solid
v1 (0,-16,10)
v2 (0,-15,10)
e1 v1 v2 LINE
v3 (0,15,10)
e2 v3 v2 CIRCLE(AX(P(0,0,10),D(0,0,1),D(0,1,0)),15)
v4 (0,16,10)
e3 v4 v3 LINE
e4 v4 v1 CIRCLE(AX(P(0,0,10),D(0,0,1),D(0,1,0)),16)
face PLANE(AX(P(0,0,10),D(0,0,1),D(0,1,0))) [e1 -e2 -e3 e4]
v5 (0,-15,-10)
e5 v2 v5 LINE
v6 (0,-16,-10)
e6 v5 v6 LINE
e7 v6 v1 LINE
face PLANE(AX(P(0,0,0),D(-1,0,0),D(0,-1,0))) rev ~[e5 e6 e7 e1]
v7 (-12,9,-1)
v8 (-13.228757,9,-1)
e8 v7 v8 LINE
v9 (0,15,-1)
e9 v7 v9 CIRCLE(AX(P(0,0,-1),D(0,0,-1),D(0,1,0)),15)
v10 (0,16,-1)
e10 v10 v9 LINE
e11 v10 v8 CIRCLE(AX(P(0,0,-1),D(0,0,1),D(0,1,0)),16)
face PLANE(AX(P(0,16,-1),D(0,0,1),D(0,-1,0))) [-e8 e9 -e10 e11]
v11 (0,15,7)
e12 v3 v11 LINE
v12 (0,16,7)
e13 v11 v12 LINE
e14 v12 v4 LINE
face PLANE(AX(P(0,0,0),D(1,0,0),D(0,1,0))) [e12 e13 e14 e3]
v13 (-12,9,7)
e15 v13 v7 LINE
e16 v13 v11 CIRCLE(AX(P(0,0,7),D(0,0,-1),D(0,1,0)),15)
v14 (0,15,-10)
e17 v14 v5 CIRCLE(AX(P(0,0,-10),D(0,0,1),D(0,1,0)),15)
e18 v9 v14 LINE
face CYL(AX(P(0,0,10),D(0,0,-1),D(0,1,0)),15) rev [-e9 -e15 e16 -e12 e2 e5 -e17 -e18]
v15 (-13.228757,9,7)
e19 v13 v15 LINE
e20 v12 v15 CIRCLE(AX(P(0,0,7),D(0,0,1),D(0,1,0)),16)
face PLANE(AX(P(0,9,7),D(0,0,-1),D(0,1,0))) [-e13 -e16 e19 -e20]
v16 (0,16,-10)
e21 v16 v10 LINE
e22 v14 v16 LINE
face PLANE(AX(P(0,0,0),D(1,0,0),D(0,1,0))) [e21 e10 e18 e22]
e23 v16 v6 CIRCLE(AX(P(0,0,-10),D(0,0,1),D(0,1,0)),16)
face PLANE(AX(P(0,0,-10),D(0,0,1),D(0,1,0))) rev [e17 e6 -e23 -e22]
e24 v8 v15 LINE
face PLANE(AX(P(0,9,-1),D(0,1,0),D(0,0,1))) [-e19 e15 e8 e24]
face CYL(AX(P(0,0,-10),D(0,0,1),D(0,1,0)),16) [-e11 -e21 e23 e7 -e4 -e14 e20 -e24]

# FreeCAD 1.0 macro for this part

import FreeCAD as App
import Part
import Sketcher

V = App.Vector


def add_polygon(sketch, points):
    """Adds a closed chain of lines whose ends are joined by coincident constraints."""
    first, n = sketch.GeometryCount, len(points)
    for a, b in zip(points, points[1:] + points[:1]):
        sketch.addGeometry(Part.LineSegment(App.Vector(*a, 0), App.Vector(*b, 0)), False)
    for i in range(n):
        sketch.addConstraint(Sketcher.Constraint("Coincident", first + i, 2, first + (i + 1) % n, 1))

doc = App.newDocument("Part")
params = doc.addObject("Spreadsheet::Sheet", "Params")
for row, (alias, value) in enumerate([
    ("sketch1_width", "1 mm"),
    ("sketch1_height", "20 mm"),
    ("revolution_angle", "180 deg"),
    ("sketch2_width", "7 mm"),
    ("sketch2_height", "8 mm"),
], start=1):
    params.set(f"A{row}", alias)
    params.set(f"B{row}", "=" + value)
    params.setAlias(f"B{row}", alias)

body = doc.addObject("PartDesign::Body", "Body")

sketch1 = doc.addObject("Sketcher::SketchObject", "Sketch")
body.addObject(sketch1)
sketch1.AttachmentSupport = (doc.YZ_Plane, [""])
sketch1.MapMode = "FlatFace"
add_polygon(sketch1, [(15, 10), (15, -10), (16, -10), (16, 10)])
sketch1.addConstraint([
    Sketcher.Constraint("Vertical", 0),
    Sketcher.Constraint("Horizontal", 1),
    Sketcher.Constraint("Vertical", 2),
    Sketcher.Constraint("Horizontal", 3),
    Sketcher.Constraint("DistanceX", 1, 1, 1, 2, 1.0),
    Sketcher.Constraint("DistanceY", 0, 2, 0, 1, 20.0),
    Sketcher.Constraint("DistanceX", -1, 1, 0, 2, 15.0),
    Sketcher.Constraint("DistanceY", 0, 2, -1, 1, 10.0),
])
sketch1.setExpression("Constraints[8]", "Params.sketch1_width")
sketch1.setExpression("Constraints[9]", "Params.sketch1_height")
revolution = doc.addObject("PartDesign::Revolution", "Revolution")
body.addObject(revolution)
revolution.Profile = sketch1
revolution.ReferenceAxis = (sketch1, ["V_Axis"])
revolution.setExpression("Angle", "Params.revolution_angle")

sketch2 = doc.addObject("Sketcher::SketchObject", "Sketch001")
body.addObject(sketch2)
sketch2.AttachmentSupport = (doc.YZ_Plane, [""])
sketch2.MapMode = "FlatFace"
add_polygon(sketch2, [(9, -1), (16, -1), (16, 7), (9, 7)])
sketch2.addConstraint([
    Sketcher.Constraint("Horizontal", 0),
    Sketcher.Constraint("Vertical", 1),
    Sketcher.Constraint("Horizontal", 2),
    Sketcher.Constraint("Vertical", 3),
    Sketcher.Constraint("DistanceX", 0, 1, 0, 2, 7.0),
    Sketcher.Constraint("DistanceY", 1, 1, 1, 2, 8.0),
    Sketcher.Constraint("DistanceY", -1, 1, 1, 2, 7.0),
    Sketcher.Constraint("DistanceX", -1, 1, 0, 2, 16.0),
])
sketch2.setExpression("Constraints[8]", "Params.sketch2_width")
sketch2.setExpression("Constraints[9]", "Params.sketch2_height")
pocket1 = doc.addObject("PartDesign::Pocket", "Pocket")
body.addObject(pocket1)
pocket1.Profile = sketch2
pocket1.Type = "ThroughAll"

doc.recompute()
